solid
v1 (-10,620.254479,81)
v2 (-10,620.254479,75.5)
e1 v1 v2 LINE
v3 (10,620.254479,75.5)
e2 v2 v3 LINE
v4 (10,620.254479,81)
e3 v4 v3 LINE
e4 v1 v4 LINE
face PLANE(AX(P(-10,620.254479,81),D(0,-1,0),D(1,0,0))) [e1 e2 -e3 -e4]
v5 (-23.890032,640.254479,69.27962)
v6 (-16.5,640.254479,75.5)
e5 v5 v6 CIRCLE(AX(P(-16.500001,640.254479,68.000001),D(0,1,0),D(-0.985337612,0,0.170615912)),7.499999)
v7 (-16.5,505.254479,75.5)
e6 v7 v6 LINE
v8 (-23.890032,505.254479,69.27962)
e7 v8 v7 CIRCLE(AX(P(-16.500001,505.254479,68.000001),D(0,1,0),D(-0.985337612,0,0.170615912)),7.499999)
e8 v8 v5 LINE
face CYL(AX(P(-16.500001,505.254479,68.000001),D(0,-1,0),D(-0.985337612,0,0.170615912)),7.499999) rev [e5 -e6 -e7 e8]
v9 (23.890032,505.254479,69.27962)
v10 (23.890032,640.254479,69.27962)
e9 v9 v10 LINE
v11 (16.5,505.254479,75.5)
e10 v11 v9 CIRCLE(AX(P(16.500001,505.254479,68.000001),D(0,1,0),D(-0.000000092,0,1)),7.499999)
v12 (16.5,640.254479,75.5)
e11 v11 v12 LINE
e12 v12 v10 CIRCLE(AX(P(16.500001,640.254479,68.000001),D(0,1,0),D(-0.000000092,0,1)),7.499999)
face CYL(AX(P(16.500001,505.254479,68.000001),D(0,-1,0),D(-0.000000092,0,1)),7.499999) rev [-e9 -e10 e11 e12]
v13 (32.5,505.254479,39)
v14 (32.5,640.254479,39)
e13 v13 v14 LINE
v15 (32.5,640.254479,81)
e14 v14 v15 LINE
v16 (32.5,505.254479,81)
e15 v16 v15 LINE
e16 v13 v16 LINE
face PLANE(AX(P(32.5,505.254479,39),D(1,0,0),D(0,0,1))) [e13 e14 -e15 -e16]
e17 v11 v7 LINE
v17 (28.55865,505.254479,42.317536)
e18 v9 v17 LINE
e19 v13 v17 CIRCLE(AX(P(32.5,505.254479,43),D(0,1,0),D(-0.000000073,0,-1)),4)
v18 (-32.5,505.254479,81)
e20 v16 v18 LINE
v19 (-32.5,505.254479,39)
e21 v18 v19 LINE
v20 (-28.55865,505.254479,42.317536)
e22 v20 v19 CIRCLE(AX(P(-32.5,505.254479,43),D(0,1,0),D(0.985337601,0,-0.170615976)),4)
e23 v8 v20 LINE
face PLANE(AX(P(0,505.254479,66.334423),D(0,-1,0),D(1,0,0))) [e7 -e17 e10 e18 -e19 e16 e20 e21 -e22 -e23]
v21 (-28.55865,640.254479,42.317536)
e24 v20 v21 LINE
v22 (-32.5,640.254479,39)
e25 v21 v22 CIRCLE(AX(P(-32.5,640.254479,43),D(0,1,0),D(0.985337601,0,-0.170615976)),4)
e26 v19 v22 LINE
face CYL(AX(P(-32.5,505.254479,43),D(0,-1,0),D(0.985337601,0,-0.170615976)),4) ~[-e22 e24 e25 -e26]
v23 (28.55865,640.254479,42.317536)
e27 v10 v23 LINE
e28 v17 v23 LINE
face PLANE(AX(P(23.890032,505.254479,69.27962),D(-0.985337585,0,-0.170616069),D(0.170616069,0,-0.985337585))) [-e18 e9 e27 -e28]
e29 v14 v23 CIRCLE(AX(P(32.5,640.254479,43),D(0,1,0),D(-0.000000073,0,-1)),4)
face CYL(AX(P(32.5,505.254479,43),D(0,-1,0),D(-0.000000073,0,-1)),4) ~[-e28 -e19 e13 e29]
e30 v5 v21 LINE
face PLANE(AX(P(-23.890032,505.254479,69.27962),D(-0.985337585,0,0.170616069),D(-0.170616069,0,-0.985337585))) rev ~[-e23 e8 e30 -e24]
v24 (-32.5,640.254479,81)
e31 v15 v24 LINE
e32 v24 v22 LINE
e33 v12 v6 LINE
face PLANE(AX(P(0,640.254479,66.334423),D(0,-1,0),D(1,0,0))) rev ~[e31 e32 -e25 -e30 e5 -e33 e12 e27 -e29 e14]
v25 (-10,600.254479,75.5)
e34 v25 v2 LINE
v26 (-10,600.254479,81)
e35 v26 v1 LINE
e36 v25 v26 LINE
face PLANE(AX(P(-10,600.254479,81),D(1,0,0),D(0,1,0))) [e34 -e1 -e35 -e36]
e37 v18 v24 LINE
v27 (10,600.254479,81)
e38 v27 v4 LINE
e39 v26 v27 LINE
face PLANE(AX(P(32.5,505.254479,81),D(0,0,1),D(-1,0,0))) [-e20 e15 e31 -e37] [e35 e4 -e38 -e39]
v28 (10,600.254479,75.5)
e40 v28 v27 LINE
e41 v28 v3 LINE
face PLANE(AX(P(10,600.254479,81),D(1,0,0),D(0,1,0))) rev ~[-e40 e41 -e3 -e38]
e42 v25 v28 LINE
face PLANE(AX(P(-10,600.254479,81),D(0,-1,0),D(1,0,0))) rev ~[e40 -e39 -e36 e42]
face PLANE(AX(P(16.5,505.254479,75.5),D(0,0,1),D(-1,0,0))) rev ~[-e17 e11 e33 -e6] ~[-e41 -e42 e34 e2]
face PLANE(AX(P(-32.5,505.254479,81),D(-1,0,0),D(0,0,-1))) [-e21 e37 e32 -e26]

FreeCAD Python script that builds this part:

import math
import FreeCAD as App
import Part
import Sketcher
from FreeCAD import Vector

doc = App.newDocument("Part")
body = doc.addObject("PartDesign::Body", "Body")

# Sketch on XY plane
sketch1 = body.newObject("Sketcher::SketchObject", "Sketch")
sketch1.AttachmentSupport = (doc.getObject("XY_Plane"), [""])
sketch1.MapMode = "FlatFace"
sketch1.AttachmentOffset = App.Placement(Vector(0, 0, 81), App.Rotation())
sketch1.addGeometry([
    Part.LineSegment(Vector(-10, 620, 0), Vector(-10, 600, 0)),
    Part.LineSegment(Vector(-10, 600, 0), Vector(10, 600, 0)),
    Part.LineSegment(Vector(10, 600, 0), Vector(10, 620, 0)),
    Part.LineSegment(Vector(10, 620, 0), Vector(-10, 620, 0)),
], False)
sketch1.addConstraint([
    Sketcher.Constraint("Coincident", 0, 2, 1, 1),
    Sketcher.Constraint("Coincident", 1, 2, 2, 1),
    Sketcher.Constraint("Coincident", 2, 2, 3, 1),
    Sketcher.Constraint("Coincident", 3, 2, 0, 1),
    Sketcher.Constraint("Vertical", 0),
    Sketcher.Constraint("Horizontal", 1),
    Sketcher.Constraint("Vertical", 2),
    Sketcher.Constraint("Horizontal", 3),
    Sketcher.Constraint("Equal", 3, 0),
    Sketcher.Constraint("DistanceX", 1, 1, 1, 2, 20.0),
    Sketcher.Constraint("DistanceX", 0, 2, -1, 1, 10.0),
    Sketcher.Constraint("DistanceY", -1, 1, 0, 2, 600.254479),
])
pad1 = body.newObject("PartDesign::Pad", "Pad")
pad1.Profile = sketch1
pad1.Length = 30
pad1.Midplane = True
body2 = doc.addObject("PartDesign::Body", "Body001")

# Sketch on XZ plane
sketch2 = body2.newObject("Sketcher::SketchObject", "Sketch001")
sketch2.AttachmentSupport = (doc.getObject("XZ_Plane001"), [""])
sketch2.MapMode = "FlatFace"
sketch2.AttachmentOffset = App.Placement(Vector(0, 0, -505.254479), App.Rotation())
sketch2.addGeometry([
    Part.LineSegment(Vector(32.5, 81, 0), Vector(32.5, 39, 0)),  # 0
    Part.ArcOfCircle(Part.Circle(Vector(32.5, 43, 0), Vector(0, 0, 1), 4), math.radians(-170), math.radians(-90)),  # 1
    Part.LineSegment(Vector(28.6, 42.3, 0), Vector(23.9, 69.3, 0)),  # 2
    Part.ArcOfCircle(Part.Circle(Vector(16.5, 68, 0), Vector(0, 0, 1), 7.5), math.radians(10), math.radians(90)),  # 3
    Part.LineSegment(Vector(16.5, 75.5, 0), Vector(-16.5, 75.5, 0)),  # 4
    Part.ArcOfCircle(Part.Circle(Vector(-16.5, 68, 0), Vector(0, 0, 1), 7.5), math.radians(90), math.radians(170)),  # 5
    Part.LineSegment(Vector(-23.9, 69.3, 0), Vector(-28.6, 42.3, 0)),  # 6
    Part.ArcOfCircle(Part.Circle(Vector(-32.5, 43, 0), Vector(0, 0, 1), 4), math.radians(-90), math.radians(-10)),  # 7
    Part.LineSegment(Vector(-32.5, 39, 0), Vector(-32.5, 81, 0)),  # 8
    Part.LineSegment(Vector(-32.5, 81, 0), Vector(32.5, 81, 0)),  # 9
], False)
sketch2.addConstraint([
    Sketcher.Constraint("Coincident", 0, 2, 1, 2),
    Sketcher.Constraint("Tangent", 1, 1, 2, 1),
    Sketcher.Constraint("Tangent", 2, 2, 3, 1),
    Sketcher.Constraint("Tangent", 3, 2, 4, 1),
    Sketcher.Constraint("Tangent", 4, 2, 5, 1),
    Sketcher.Constraint("Tangent", 5, 2, 6, 1),
    Sketcher.Constraint("Tangent", 6, 2, 7, 2),
    Sketcher.Constraint("Coincident", 7, 1, 8, 1),
    Sketcher.Constraint("Coincident", 8, 2, 9, 1),
    Sketcher.Constraint("Coincident", 9, 2, 0, 1),
    Sketcher.Constraint("Vertical", 0),
    Sketcher.Constraint("Horizontal", 4),
    Sketcher.Constraint("Vertical", 8),
    Sketcher.Constraint("Horizontal", 9),
    Sketcher.Constraint("Equal", 3, 5),
    Sketcher.Constraint("Equal", 1, 7),
    Sketcher.Constraint("Symmetric", 1, 3, 7, 3, -2),
    Sketcher.Constraint("Horizontal", 2, 2, 5, 2),
    Sketcher.Constraint("Vertical", 1, 3, 0, 2),
    Sketcher.Constraint("Radius", 1, 4.0),
    Sketcher.Constraint("Radius", 3, 7.499999),
    Sketcher.Constraint("DistanceX", 4, 2, 4, 1, 33.0),
    Sketcher.Constraint("DistanceX", 9, 1, 9, 2, 65.0),
    Sketcher.Constraint("DistanceY", 0, 2, 0, 1, 42.0),
    Sketcher.Constraint("DistanceY", -1, 1, 1, 3, 43.0),
    Sketcher.Constraint("DistanceY", -1, 1, 3, 3, 68.000001),
    Sketcher.Constraint("DistanceX", 3, 3, 1, 3, 16.0),
])
pad2 = body2.newObject("PartDesign::Pad", "Pad001")
pad2.Profile = sketch2
pad2.Length = 135
pad2.Reversed = True
doc.recompute()

boolean = body2.newObject("PartDesign::Boolean", "Boolean")
boolean.Type = "Cut"
boolean.addObjects([body])

doc.recompute()
